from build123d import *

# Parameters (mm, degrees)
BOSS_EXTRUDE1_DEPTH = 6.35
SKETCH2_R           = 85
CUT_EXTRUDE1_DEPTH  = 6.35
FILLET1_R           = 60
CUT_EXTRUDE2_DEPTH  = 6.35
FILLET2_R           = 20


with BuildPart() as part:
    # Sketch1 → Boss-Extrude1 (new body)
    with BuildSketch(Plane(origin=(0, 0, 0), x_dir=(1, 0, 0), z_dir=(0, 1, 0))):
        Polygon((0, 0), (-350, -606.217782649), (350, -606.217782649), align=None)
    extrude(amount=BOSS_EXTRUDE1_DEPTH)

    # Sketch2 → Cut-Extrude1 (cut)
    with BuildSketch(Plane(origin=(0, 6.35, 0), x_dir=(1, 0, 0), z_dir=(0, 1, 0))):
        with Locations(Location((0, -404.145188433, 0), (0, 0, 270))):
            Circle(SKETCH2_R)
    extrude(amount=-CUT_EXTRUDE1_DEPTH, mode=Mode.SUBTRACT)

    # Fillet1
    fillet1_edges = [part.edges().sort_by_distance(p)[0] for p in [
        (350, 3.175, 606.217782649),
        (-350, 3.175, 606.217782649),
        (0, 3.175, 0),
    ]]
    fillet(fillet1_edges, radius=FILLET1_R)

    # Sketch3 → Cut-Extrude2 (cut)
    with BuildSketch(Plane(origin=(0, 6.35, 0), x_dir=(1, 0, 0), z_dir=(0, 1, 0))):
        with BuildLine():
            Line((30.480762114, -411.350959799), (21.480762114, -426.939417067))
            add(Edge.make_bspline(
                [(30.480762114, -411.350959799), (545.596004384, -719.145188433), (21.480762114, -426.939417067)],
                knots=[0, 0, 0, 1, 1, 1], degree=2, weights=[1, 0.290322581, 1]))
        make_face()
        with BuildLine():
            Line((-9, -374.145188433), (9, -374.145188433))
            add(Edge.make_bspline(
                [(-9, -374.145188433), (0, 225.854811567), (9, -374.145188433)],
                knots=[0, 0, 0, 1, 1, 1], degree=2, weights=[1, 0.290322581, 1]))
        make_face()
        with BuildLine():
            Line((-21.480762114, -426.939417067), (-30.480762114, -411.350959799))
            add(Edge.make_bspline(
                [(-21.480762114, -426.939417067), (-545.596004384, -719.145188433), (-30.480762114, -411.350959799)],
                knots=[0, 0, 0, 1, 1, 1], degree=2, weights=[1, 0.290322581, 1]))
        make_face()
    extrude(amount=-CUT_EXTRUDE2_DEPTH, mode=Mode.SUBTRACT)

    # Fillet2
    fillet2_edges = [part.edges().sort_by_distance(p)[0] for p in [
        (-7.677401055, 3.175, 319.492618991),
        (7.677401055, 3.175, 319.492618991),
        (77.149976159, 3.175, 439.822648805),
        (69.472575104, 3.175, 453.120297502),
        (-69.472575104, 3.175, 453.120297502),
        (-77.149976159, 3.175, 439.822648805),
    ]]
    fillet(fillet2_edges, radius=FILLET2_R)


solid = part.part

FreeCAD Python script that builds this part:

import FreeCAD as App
import Part
import Sketcher
from FreeCAD import Vector
Q = App.Units.Quantity


def edges_at(feature, points):
    """Names of the edges that pass closest to the given points."""
    edges = feature.Shape.Edges
    near = lambda p: min(range(len(edges)), key=lambda i: edges[i].distToShape(Part.Vertex(*p))[0])
    return sorted({f"Edge{near(p) + 1}" for p in points})


def add_polygon(sketch, points):
    """Adds a closed chain of lines whose ends are joined by coincident constraints."""
    first, n = sketch.GeometryCount, len(points)
    for a, b in zip(points, points[1:] + points[:1]):
        sketch.addGeometry(Part.LineSegment(App.Vector(*a, 0), App.Vector(*b, 0)), False)
    for i in range(n):
        sketch.addConstraint(Sketcher.Constraint("Coincident", first + i, 2, first + (i + 1) % n, 1))

doc = App.newDocument("Part")
body = doc.addObject("PartDesign::Body", "Body")

sketch1 = body.newObject("Sketcher::SketchObject", "Sketch")
sketch1.AttachmentSupport = (doc.getObject("XZ_Plane"), [""])
sketch1.MapMode = "FlatFace"
add_polygon(sketch1, [(0, 0), (-350, 606.217783), (350, 606.217783)])
sketch1.addConstraint([
    Sketcher.Constraint("Horizontal", 1),
    Sketcher.Constraint("Coincident", 2, 2, -1, 1),
    Sketcher.Constraint("Equal", 0, 2),
    Sketcher.Constraint("DistanceX", 1, 1, 1, 2, 700.0),
    Sketcher.Constraint("Angle", 0, Q("120 deg")),
])
pad1 = body.newObject("PartDesign::Pad", "Pad")
pad1.Profile = sketch1
pad1.Length = 6.35
pad1.Reversed = True

sketch2 = body.newObject("Sketcher::SketchObject", "Sketch001")
sketch2.AttachmentSupport = (doc.getObject("XZ_Plane"), [""])
sketch2.MapMode = "FlatFace"
sketch2.AttachmentOffset = App.Placement(Vector(0, 0, -6.35), App.Rotation())
sketch2.addGeometry(Part.Circle(Vector(0, 404.145188, 0), Vector(0, 0, 1), 85), False)
sketch2.addConstraint([
    Sketcher.Constraint("PointOnObject", 0, 3, -2),
    Sketcher.Constraint("Diameter", 0, 170.0),
    Sketcher.Constraint("DistanceY", -1, 1, 0, 3, 404.145188),
])
pocket1 = body.newObject("PartDesign::Pocket", "Pocket")
pocket1.Profile = sketch2
pocket1.Length = 6.35
pocket1.Reversed = True
doc.recompute()

fillet = body.newObject("PartDesign::Fillet", "Fillet")
fillet.Base = (pocket1, edges_at(pocket1, [(350, 3.175, 606.218), (-350, 3.175, 606.218), (0, 3.175, 0)]))
fillet.Radius = 60

sketch3 = body.newObject("Sketcher::SketchObject", "Sketch002")
sketch3.AttachmentSupport = (doc.getObject("XZ_Plane"), [""])
sketch3.MapMode = "FlatFace"
sketch3.AttachmentOffset = App.Placement(Vector(0, 0, -6.35), App.Rotation())
sketch3.addGeometry([
    Part.LineSegment(Vector(30.480762, 411.35096, 0), Vector(21.480762, 426.939417, 0)),
    Part.BSplineCurve([Vector(30.480762, 411.35096, 0), Vector(545.596004, 719.145188, 0), Vector(21.480762, 426.939417, 0)], [3, 3], [0, 1], False, 2, [1, 0.290322581, 1], False),
    Part.LineSegment(Vector(-9, 374.145188, 0), Vector(9, 374.145188, 0)),
    Part.BSplineCurve([Vector(-9, 374.145188, 0), Vector(0, -225.854812, 0), Vector(9, 374.145188, 0)], [3, 3], [0, 1], False, 2, [1, 0.290322581, 1], False),
    Part.LineSegment(Vector(-21.480762, 426.939417, 0), Vector(-30.480762, 411.35096, 0)),
    Part.BSplineCurve([Vector(-21.480762, 426.939417, 0), Vector(-545.596004, 719.145188, 0), Vector(-30.480762, 411.35096, 0)], [3, 3], [0, 1], False, 2, [1, 0.290322581, 1], False),
], False)
sketch3.addConstraint([
    Sketcher.Constraint("Block", 1),
    Sketcher.Constraint("Block", 3),
    Sketcher.Constraint("Block", 5),
    Sketcher.Constraint("Coincident", 0, 1, 1, 1),
    Sketcher.Constraint("Coincident", 1, 2, 0, 2),
    Sketcher.Constraint("Coincident", 2, 1, 3, 1),
    Sketcher.Constraint("Coincident", 3, 2, 2, 2),
    Sketcher.Constraint("Coincident", 4, 1, 5, 1),
    Sketcher.Constraint("Coincident", 5, 2, 4, 2),
])
pocket2 = body.newObject("PartDesign::Pocket", "Pocket001")
pocket2.Profile = sketch3
pocket2.Length = 6.35
pocket2.Reversed = True
doc.recompute()

fillet2 = body.newObject("PartDesign::Fillet", "Fillet001")
fillet2.Base = (pocket2, edges_at(pocket2, [
    (-7.677, 3.175, 319.493),
    (7.677, 3.175, 319.493),
    (77.15, 3.175, 439.823),
    (69.473, 3.175, 453.12),
    (-69.473, 3.175, 453.12),
    (-77.15, 3.175, 439.823),
]))
fillet2.Radius = 20

doc.recompute()
